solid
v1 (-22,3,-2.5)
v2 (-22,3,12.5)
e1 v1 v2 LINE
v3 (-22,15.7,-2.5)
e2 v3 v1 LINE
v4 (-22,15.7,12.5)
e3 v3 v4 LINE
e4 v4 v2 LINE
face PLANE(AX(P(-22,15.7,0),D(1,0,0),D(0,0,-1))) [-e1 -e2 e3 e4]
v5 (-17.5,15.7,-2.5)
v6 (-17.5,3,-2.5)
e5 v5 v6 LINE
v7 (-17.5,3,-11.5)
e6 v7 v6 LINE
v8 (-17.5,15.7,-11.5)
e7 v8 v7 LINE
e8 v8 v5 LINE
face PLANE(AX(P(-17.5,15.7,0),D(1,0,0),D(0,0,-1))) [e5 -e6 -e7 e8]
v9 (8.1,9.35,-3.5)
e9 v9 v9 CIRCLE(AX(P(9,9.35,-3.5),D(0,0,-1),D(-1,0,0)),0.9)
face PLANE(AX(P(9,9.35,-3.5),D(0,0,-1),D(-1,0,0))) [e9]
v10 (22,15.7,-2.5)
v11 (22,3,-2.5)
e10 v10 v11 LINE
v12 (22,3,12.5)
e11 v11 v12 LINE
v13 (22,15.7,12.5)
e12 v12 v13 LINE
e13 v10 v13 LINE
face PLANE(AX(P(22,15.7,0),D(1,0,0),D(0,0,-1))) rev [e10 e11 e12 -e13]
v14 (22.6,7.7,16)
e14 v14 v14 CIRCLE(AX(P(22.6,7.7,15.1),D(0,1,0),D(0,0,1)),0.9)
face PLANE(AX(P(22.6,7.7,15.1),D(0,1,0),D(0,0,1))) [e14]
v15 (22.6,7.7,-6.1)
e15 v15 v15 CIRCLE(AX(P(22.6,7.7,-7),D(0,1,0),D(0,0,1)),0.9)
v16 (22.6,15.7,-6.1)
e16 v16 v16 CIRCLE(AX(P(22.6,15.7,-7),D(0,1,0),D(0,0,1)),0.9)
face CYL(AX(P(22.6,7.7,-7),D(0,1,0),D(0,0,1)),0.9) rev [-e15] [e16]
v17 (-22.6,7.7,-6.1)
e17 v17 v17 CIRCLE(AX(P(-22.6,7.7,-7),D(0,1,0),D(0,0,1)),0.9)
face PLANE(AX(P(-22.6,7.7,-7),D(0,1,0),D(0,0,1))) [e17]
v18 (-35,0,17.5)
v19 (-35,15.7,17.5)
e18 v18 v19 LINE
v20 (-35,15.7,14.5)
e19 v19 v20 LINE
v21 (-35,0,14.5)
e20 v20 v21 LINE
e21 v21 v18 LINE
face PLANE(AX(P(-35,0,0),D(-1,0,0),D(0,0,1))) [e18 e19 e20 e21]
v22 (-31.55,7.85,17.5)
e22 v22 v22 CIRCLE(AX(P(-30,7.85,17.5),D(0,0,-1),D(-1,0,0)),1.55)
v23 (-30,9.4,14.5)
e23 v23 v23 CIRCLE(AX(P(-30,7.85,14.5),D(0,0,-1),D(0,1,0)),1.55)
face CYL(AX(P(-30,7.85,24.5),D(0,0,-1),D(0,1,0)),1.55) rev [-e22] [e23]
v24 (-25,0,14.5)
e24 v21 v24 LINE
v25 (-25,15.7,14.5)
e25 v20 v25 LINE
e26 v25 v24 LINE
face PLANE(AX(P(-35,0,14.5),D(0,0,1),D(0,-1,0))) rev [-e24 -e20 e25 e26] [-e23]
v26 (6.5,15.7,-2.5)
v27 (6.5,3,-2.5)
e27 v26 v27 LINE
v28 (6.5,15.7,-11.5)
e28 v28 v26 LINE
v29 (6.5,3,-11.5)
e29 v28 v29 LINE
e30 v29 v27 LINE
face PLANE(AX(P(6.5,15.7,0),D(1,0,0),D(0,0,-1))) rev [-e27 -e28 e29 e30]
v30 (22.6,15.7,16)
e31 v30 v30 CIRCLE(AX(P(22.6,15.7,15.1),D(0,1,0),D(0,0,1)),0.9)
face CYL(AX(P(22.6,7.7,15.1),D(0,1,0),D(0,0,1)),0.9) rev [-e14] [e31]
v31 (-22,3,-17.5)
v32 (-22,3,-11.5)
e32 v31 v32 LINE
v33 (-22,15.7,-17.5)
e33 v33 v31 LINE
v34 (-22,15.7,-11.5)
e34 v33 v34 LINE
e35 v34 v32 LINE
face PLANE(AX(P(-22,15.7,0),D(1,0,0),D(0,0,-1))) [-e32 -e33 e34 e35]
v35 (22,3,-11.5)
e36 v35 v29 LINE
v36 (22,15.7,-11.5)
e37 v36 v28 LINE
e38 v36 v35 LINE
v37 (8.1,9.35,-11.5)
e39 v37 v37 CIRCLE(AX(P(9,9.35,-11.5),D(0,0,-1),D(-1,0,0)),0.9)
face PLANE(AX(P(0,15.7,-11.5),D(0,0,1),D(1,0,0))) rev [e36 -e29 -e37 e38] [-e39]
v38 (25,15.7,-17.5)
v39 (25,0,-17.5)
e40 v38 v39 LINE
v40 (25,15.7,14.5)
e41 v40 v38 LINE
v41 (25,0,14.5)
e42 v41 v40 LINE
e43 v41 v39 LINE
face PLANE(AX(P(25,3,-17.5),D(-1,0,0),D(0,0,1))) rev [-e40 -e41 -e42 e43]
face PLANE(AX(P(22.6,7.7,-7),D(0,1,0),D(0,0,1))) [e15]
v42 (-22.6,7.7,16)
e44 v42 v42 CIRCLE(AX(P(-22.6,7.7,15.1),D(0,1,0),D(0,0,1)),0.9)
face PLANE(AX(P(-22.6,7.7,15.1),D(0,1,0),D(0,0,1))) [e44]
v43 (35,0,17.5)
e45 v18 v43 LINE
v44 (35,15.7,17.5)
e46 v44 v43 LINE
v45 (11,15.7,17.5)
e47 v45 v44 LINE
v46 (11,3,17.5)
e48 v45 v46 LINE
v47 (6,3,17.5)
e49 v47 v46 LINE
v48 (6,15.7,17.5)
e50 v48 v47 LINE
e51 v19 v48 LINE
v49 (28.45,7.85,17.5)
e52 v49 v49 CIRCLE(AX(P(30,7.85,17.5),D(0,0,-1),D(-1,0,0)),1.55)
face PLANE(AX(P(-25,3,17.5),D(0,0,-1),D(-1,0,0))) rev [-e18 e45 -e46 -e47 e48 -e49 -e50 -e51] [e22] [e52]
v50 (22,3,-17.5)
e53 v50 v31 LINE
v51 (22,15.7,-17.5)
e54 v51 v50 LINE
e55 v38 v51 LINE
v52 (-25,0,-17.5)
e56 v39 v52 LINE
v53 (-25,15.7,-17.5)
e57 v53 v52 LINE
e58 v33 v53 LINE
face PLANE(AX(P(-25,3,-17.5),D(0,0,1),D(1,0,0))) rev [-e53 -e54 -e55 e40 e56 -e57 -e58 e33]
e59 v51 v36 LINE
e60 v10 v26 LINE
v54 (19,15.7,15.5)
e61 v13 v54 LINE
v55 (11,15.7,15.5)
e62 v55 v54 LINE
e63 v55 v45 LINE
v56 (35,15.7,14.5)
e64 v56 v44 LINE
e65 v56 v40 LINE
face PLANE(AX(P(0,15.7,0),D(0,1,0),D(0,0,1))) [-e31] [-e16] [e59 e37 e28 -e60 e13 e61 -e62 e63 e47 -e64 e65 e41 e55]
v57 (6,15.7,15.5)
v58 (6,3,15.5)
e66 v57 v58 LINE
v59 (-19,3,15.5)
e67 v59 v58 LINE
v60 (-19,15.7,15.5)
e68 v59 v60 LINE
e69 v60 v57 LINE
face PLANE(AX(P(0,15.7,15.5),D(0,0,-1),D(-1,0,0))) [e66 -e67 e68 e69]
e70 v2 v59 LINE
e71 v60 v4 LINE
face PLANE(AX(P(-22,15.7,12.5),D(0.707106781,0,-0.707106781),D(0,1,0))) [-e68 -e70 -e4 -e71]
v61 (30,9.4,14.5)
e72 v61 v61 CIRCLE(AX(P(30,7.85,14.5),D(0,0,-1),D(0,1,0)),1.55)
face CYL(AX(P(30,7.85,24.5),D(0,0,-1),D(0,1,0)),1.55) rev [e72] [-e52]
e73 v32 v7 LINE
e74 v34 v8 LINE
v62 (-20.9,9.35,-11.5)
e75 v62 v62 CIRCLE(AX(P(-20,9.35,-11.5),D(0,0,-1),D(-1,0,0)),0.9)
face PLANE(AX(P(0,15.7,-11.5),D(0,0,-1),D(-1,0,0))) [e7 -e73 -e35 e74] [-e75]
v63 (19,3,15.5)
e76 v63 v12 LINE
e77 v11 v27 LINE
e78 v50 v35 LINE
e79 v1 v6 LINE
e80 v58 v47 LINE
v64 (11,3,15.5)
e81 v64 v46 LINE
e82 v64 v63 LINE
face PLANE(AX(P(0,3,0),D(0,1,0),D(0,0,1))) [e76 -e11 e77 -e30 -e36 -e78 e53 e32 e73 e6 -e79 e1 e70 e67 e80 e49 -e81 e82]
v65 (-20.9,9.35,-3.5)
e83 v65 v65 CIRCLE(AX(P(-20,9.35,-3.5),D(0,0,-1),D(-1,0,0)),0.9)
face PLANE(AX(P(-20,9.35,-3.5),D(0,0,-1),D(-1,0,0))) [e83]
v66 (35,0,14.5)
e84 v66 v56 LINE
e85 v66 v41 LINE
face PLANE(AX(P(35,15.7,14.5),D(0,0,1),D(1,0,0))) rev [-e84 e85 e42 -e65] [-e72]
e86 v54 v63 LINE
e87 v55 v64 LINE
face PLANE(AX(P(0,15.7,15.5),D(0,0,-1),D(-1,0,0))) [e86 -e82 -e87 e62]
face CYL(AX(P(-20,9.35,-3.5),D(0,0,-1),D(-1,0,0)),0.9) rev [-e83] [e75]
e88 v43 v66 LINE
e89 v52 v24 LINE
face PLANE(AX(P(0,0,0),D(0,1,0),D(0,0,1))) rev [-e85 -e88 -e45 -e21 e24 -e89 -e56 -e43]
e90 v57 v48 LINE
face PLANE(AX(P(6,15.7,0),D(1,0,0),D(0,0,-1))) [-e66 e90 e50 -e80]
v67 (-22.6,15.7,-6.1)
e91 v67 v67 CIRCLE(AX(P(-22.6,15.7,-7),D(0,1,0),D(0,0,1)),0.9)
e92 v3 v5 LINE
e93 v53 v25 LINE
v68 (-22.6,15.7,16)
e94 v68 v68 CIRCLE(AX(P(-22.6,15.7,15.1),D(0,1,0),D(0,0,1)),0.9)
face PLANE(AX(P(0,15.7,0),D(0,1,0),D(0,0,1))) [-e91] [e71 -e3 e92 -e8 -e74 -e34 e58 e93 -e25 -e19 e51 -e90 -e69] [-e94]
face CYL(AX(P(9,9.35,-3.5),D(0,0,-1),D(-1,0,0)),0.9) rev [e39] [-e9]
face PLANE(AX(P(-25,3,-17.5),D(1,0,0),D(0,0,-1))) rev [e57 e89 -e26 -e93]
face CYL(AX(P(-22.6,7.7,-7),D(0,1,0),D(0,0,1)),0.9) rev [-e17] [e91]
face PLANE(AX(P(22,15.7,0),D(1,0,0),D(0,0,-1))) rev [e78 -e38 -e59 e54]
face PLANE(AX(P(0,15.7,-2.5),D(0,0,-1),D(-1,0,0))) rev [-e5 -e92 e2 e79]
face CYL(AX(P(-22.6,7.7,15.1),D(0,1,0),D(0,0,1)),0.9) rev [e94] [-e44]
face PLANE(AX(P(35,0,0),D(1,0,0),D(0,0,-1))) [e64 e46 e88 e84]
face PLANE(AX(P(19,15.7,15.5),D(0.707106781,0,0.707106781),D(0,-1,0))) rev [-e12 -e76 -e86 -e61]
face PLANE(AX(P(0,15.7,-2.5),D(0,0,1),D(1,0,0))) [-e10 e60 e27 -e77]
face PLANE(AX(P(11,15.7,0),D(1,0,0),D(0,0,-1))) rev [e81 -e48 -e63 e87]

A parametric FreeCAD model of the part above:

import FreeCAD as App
import Part
import Sketcher

V = App.Vector
Q = App.Units.Quantity


def edges_at(feature, points):
    """Names of the edges that pass closest to the given points."""
    edges = feature.Shape.Edges
    near = lambda p: min(range(len(edges)), key=lambda i: edges[i].distToShape(Part.Vertex(*p))[0])
    return sorted({f"Edge{near(p) + 1}" for p in points})

doc = App.newDocument("Part")
body = doc.addObject("PartDesign::Body", "Body")

# Sketch on XZ plane
sketch1 = body.newObject("Sketcher::SketchObject", "Sketch")
sketch1.AttachmentSupport = (doc.getObject("XZ_Plane"), [""])
sketch1.MapMode = "FlatFace"
sketch1.addGeometry([
    Part.LineSegment(V(-25, -18, 0), V(-25, 18, 0)),
    Part.LineSegment(V(-25, 18, 0), V(25, 18, 0)),
    Part.LineSegment(V(25, 18, 0), V(25, -18, 0)),
    Part.LineSegment(V(25, -18, 0), V(-25, -18, 0)),
], False)
sketch1.addConstraint([
    Sketcher.Constraint("Coincident", 0, 2, 1, 1),
    Sketcher.Constraint("Coincident", 1, 2, 2, 1),
    Sketcher.Constraint("Coincident", 2, 2, 3, 1),
    Sketcher.Constraint("Coincident", 3, 2, 0, 1),
    Sketcher.Constraint("Vertical", 0),
    Sketcher.Constraint("Horizontal", 1),
    Sketcher.Constraint("Vertical", 2),
    Sketcher.Constraint("Horizontal", 3),
    Sketcher.Constraint("Symmetric", 0, 2, 2, 2, -1, 1),
    Sketcher.Constraint("DistanceX", 1, 1, 1, 2, Q("50 mm")),
    Sketcher.Constraint("DistanceY", 0, 1, 0, 2, Q("35 mm")),
])
pad1 = body.newObject("PartDesign::Pad", "Pad")
pad1.Profile = sketch1
pad1.Length = 3
pad1.Reversed = True

# Sketch on XZ plane
sketch2 = body.newObject("Sketcher::SketchObject", "Sketch001")
sketch2.AttachmentSupport = (doc.getObject("XZ_Plane"), [""])
sketch2.MapMode = "FlatFace"
sketch2.AttachmentOffset = App.Placement(V(0, 0, -3), App.Rotation())
sketch2.addGeometry([
    Part.LineSegment(V(25, -17.5, 0), V(22, -17.5, 0)),  # 0
    Part.LineSegment(V(22, -17.5, 0), V(22, -11.5, 0)),  # 1
    Part.LineSegment(V(22, -11.5, 0), V(6.5, -11.5, 0)),  # 2
    Part.LineSegment(V(6.5, -11.5, 0), V(6.5, -2.5, 0)),  # 3
    Part.LineSegment(V(6.5, -2.5, 0), V(22, -2.5, 0)),  # 4
    Part.LineSegment(V(22, -2.5, 0), V(22, 15.5, 0)),  # 5
    Part.LineSegment(V(22, 15.5, 0), V(11, 15.5, 0)),  # 6
    Part.LineSegment(V(11, 15.5, 0), V(11, 17.5, 0)),  # 7
    Part.LineSegment(V(11, 17.5, 0), V(25, 17.5, 0)),  # 8
    Part.LineSegment(V(25, 17.5, 0), V(25, -17.5, 0)),  # 9
    Part.LineSegment(V(-17.5, -11.5, 0), V(-22, -11.5, 0)),  # 10
    Part.LineSegment(V(-22, -11.5, 0), V(-22, -17.5, 0)),  # 11
    Part.LineSegment(V(-22, -17.5, 0), V(-25, -17.5, 0)),  # 12
    Part.LineSegment(V(-25, -17.5, 0), V(-25, 17.5, 0)),  # 13
    Part.LineSegment(V(-25, 17.5, 0), V(6, 17.5, 0)),  # 14
    Part.LineSegment(V(6, 17.5, 0), V(6, 15.5, 0)),  # 15
    Part.LineSegment(V(6, 15.5, 0), V(-22, 15.5, 0)),  # 16
    Part.LineSegment(V(-22, 15.5, 0), V(-22, -2.5, 0)),  # 17
    Part.LineSegment(V(-22, -2.5, 0), V(-17.5, -2.5, 0)),  # 18
    Part.LineSegment(V(-17.5, -2.5, 0), V(-17.5, -11.5, 0)),  # 19
], False)
sketch2.addConstraint([
    Sketcher.Constraint("Coincident", 0, 2, 1, 1),
    Sketcher.Constraint("Coincident", 1, 2, 2, 1),
    Sketcher.Constraint("Coincident", 2, 2, 3, 1),
    Sketcher.Constraint("Coincident", 3, 2, 4, 1),
    Sketcher.Constraint("Coincident", 4, 2, 5, 1),
    Sketcher.Constraint("Coincident", 5, 2, 6, 1),
    Sketcher.Constraint("Coincident", 6, 2, 7, 1),
    Sketcher.Constraint("Coincident", 7, 2, 8, 1),
    Sketcher.Constraint("Coincident", 8, 2, 9, 1),
    Sketcher.Constraint("Coincident", 9, 2, 0, 1),
    Sketcher.Constraint("Coincident", 10, 2, 11, 1),
    Sketcher.Constraint("Coincident", 11, 2, 12, 1),
    Sketcher.Constraint("Coincident", 12, 2, 13, 1),
    Sketcher.Constraint("Coincident", 13, 2, 14, 1),
    Sketcher.Constraint("Coincident", 14, 2, 15, 1),
    Sketcher.Constraint("Coincident", 15, 2, 16, 1),
    Sketcher.Constraint("Coincident", 16, 2, 17, 1),
    Sketcher.Constraint("Coincident", 17, 2, 18, 1),
    Sketcher.Constraint("Coincident", 18, 2, 19, 1),
    Sketcher.Constraint("Coincident", 19, 2, 10, 1),
    Sketcher.Constraint("Horizontal", 0),
    Sketcher.Constraint("Vertical", 1),
    Sketcher.Constraint("Horizontal", 2),
    Sketcher.Constraint("Vertical", 3),
    Sketcher.Constraint("Horizontal", 4),
    Sketcher.Constraint("Vertical", 5),
    Sketcher.Constraint("Horizontal", 6),
    Sketcher.Constraint("Vertical", 7),
    Sketcher.Constraint("Horizontal", 8),
    Sketcher.Constraint("Vertical", 9),
    Sketcher.Constraint("Horizontal", 10),
    Sketcher.Constraint("Vertical", 11),
    Sketcher.Constraint("Horizontal", 12),
    Sketcher.Constraint("Vertical", 13),
    Sketcher.Constraint("Horizontal", 14),
    Sketcher.Constraint("Vertical", 15),
    Sketcher.Constraint("Horizontal", 16),
    Sketcher.Constraint("Vertical", 17),
    Sketcher.Constraint("Horizontal", 18),
    Sketcher.Constraint("Vertical", 19),
    Sketcher.Constraint("Symmetric", 8, 2, 12, 2, -1, 1),
    Sketcher.Constraint("Symmetric", 1, 2, 10, 2, -2),
    Sketcher.Constraint("Symmetric", 5, 2, 16, 2, -2),
    Sketcher.Constraint("Horizontal", 9, 2, 11, 2),
    Sketcher.Constraint("Horizontal", 8, 2, 13, 2),
    Sketcher.Constraint("Horizontal", 4, 2, 17, 2),
    Sketcher.Constraint("Vertical", 1, 2, 4, 2),
    Sketcher.Constraint("DistanceX", 0, 2, 0, 1, Q("3 mm")),
    Sketcher.Constraint("DistanceX", 6, 2, 6, 1, Q("11 mm")),
    Sketcher.Constraint("DistanceX", 14, 1, 14, 2, Q("31 mm")),
    Sketcher.Constraint("DistanceY", 1, 1, 1, 2, Q("6 mm")),
    Sketcher.Constraint("DistanceY", 3, 1, 3, 2, Q("9 mm")),
    Sketcher.Constraint("DistanceY", 5, 1, 5, 2, Q("18 mm")),
    Sketcher.Constraint("DistanceY", 7, 1, 7, 2, Q("2 mm")),
    Sketcher.Constraint("DistanceX", 2, 2, 2, 1, Q("15.5 mm")),
    Sketcher.Constraint("DistanceX", 10, 2, 10, 1, Q("4.5 mm")),
    Sketcher.Constraint("DistanceX", -1, 1, 0, 2, Q("22 mm")),
])
pad2 = body.newObject("PartDesign::Pad", "Pad001")
pad2.Profile = sketch2
pad2.Length = 12.7
pad2.Reversed = True
doc.recompute()

chamfer = body.newObject("PartDesign::Chamfer", "Chamfer")
chamfer.Base = (pad2, edges_at(pad2, [(22, 9.35, 15.5), (-22, 9.35, 15.5)]))
chamfer.Size = 3

# Sketch on XZ plane
sketch3 = body.newObject("Sketcher::SketchObject", "Sketch002")
sketch3.AttachmentSupport = (doc.getObject("XZ_Plane"), [""])
sketch3.MapMode = "FlatFace"
sketch3.AttachmentOffset = App.Placement(V(0, 0, -15.7), App.Rotation())
sketch3.addGeometry([
    Part.Circle(V(-22.6, 15.1, 0), V(0, 0, 1), 0.9),
    Part.Circle(V(22.6, 15.1, 0), V(0, 0, 1), 0.9),
    Part.Circle(V(22.6, -7, 0), V(0, 0, 1), 0.9),
], False)
sketch3.addConstraint([
    Sketcher.Constraint("Equal", 0, 1),
    Sketcher.Constraint("Equal", 1, 2),
    Sketcher.Constraint("Symmetric", 0, 3, 1, 3, -2),
    Sketcher.Constraint("Vertical", 1, 3, 2, 3),
    Sketcher.Constraint("Diameter", 0, Q("1.8 mm")),
    Sketcher.Constraint("DistanceY", 2, 3, -1, 1, Q("7 mm")),
    Sketcher.Constraint("DistanceX", 0, 3, -1, 1, Q("22.6 mm")),
    Sketcher.Constraint("DistanceY", -1, 1, 0, 3, Q("15.1 mm")),
])
pocket1 = body.newObject("PartDesign::Pocket", "Pocket")
pocket1.Profile = sketch3
pocket1.Length = 8
pocket1.Reversed = True

# Sketch on XZ plane
sketch4 = body.newObject("Sketcher::SketchObject", "Sketch003")
sketch4.AttachmentSupport = (doc.getObject("XZ_Plane"), [""])
sketch4.MapMode = "FlatFace"
sketch4.AttachmentOffset = App.Placement(V(0, 0, -15.7), App.Rotation())
sketch4.addGeometry(Part.Circle(V(-22.6, -7, 0), V(0, 0, 1), 0.9), False)
sketch4.addConstraint([
    Sketcher.Constraint("Diameter", 0, Q("1.8 mm")),
    Sketcher.Constraint("DistanceY", 0, 3, -1, 1, Q("7 mm")),
    Sketcher.Constraint("DistanceX", 0, 3, -1, 1, Q("22.6 mm")),
])
pocket2 = body.newObject("PartDesign::Pocket", "Pocket001")
pocket2.Profile = sketch4
pocket2.Length = 8
pocket2.Reversed = True

# Sketch on XY plane
sketch5 = body.newObject("Sketcher::SketchObject", "Sketch004")
sketch5.AttachmentSupport = (doc.getObject("XY_Plane"), [""])
sketch5.MapMode = "FlatFace"
sketch5.AttachmentOffset = App.Placement(V(0, 0, -11.5), App.Rotation())
sketch5.addGeometry([
    Part.Circle(V(-20, 9.3, 0), V(0, 0, 1), 0.9),
    Part.Circle(V(9, 9.3, 0), V(0, 0, 1), 0.9),
], False)
sketch5.addConstraint([
    Sketcher.Constraint("Equal", 0, 1),
    Sketcher.Constraint("Horizontal", 0, 3, 1, 3),
    Sketcher.Constraint("Diameter", 0, Q("1.8 mm")),
    Sketcher.Constraint("DistanceX", 0, 3, -1, 1, Q("20 mm")),
    Sketcher.Constraint("DistanceX", -1, 1, 1, 3, Q("9 mm")),
    Sketcher.Constraint("DistanceY", -1, 1, 0, 3, Q("9.35 mm")),
])
pocket3 = body.newObject("PartDesign::Pocket", "Pocket002")
pocket3.Profile = sketch5
pocket3.Length = 8
pocket3.Reversed = True

# Sketch on YZ plane
sketch6 = body.newObject("Sketcher::SketchObject", "Sketch005")
sketch6.AttachmentSupport = (doc.getObject("YZ_Plane"), [""])
sketch6.MapMode = "FlatFace"
sketch6.AttachmentOffset = App.Placement(V(0, 0, -25), App.Rotation())
sketch6.addGeometry([
    Part.LineSegment(V(15.7, 14.5, 0), V(0, 14.5, 0)),
    Part.LineSegment(V(0, 14.5, 0), V(0, 17.5, 0)),
    Part.LineSegment(V(0, 17.5, 0), V(15.7, 17.5, 0)),
    Part.LineSegment(V(15.7, 17.5, 0), V(15.7, 14.5, 0)),
], False)
sketch6.addConstraint([
    Sketcher.Constraint("Coincident", 0, 2, 1, 1),
    Sketcher.Constraint("Coincident", 1, 2, 2, 1),
    Sketcher.Constraint("Coincident", 2, 2, 3, 1),
    Sketcher.Constraint("Coincident", 3, 2, 0, 1),
    Sketcher.Constraint("Horizontal", 0),
    Sketcher.Constraint("Vertical", 1),
    Sketcher.Constraint("Horizontal", 2),
    Sketcher.Constraint("Vertical", 3),
    Sketcher.Constraint("PointOnObject", 0, 2, -2),
    Sketcher.Constraint("DistanceY", 1, 1, 1, 2, Q("3 mm")),
    Sketcher.Constraint("DistanceX", 0, 2, 0, 1, Q("15.7 mm")),
    Sketcher.Constraint("DistanceY", -1, 1, 0, 2, Q("14.5 mm")),
])
pad3 = body.newObject("PartDesign::Pad", "Pad002")
pad3.Profile = sketch6
pad3.Length = 10
pad3.Reversed = True

# Sketch on YZ plane
sketch7 = body.newObject("Sketcher::SketchObject", "Sketch006")
sketch7.AttachmentSupport = (doc.getObject("YZ_Plane"), [""])
sketch7.MapMode = "FlatFace"
sketch7.AttachmentOffset = App.Placement(V(0, 0, 25), App.Rotation())
sketch7.addGeometry([
    Part.LineSegment(V(15.7, 17.5, 0), V(0, 17.5, 0)),
    Part.LineSegment(V(0, 17.5, 0), V(0, 14.5, 0)),
    Part.LineSegment(V(0, 14.5, 0), V(15.7, 14.5, 0)),
    Part.LineSegment(V(15.7, 14.5, 0), V(15.7, 17.5, 0)),
], False)
sketch7.addConstraint([
    Sketcher.Constraint("Coincident", 0, 2, 1, 1),
    Sketcher.Constraint("Coincident", 1, 2, 2, 1),
    Sketcher.Constraint("Coincident", 2, 2, 3, 1),
    Sketcher.Constraint("Coincident", 3, 2, 0, 1),
    Sketcher.Constraint("Horizontal", 0),
    Sketcher.Constraint("Vertical", 1),
    Sketcher.Constraint("Horizontal", 2),
    Sketcher.Constraint("Vertical", 3),
    Sketcher.Constraint("PointOnObject", 0, 2, -2),
    Sketcher.Constraint("DistanceY", 1, 2, 1, 1, Q("3 mm")),
    Sketcher.Constraint("DistanceX", 0, 2, 0, 1, Q("15.7 mm")),
    Sketcher.Constraint("DistanceY", -1, 1, 0, 2, Q("17.5 mm")),
])
pad4 = body.newObject("PartDesign::Pad", "Pad003")
pad4.Profile = sketch7
pad4.Length = 10

# Sketch on XY plane
sketch8 = body.newObject("Sketcher::SketchObject", "Sketch007")
sketch8.AttachmentSupport = (doc.getObject("XY_Plane"), [""])
sketch8.MapMode = "FlatFace"
sketch8.AttachmentOffset = App.Placement(V(0, 0, 14.5), App.Rotation())
sketch8.addGeometry([
    Part.Circle(V(-30, 7.8, 0), V(0, 0, 1), 1.6),
    Part.Circle(V(30, 7.8, 0), V(0, 0, 1), 1.6),
], False)
sketch8.addConstraint([
    Sketcher.Constraint("Equal", 0, 1),
    Sketcher.Constraint("Symmetric", 0, 3, 1, 3, -2),
    Sketcher.Constraint("Diameter", 0, Q("3.1 mm")),
    Sketcher.Constraint("DistanceX", 0, 3, -1, 1, Q("30 mm")),
    Sketcher.Constraint("DistanceY", -1, 1, 0, 3, Q("7.85 mm")),
])
pocket4 = body.newObject("PartDesign::Pocket", "Pocket003")
pocket4.Profile = sketch8
pocket4.Length = 10
pocket4.Reversed = True

doc.recompute()
